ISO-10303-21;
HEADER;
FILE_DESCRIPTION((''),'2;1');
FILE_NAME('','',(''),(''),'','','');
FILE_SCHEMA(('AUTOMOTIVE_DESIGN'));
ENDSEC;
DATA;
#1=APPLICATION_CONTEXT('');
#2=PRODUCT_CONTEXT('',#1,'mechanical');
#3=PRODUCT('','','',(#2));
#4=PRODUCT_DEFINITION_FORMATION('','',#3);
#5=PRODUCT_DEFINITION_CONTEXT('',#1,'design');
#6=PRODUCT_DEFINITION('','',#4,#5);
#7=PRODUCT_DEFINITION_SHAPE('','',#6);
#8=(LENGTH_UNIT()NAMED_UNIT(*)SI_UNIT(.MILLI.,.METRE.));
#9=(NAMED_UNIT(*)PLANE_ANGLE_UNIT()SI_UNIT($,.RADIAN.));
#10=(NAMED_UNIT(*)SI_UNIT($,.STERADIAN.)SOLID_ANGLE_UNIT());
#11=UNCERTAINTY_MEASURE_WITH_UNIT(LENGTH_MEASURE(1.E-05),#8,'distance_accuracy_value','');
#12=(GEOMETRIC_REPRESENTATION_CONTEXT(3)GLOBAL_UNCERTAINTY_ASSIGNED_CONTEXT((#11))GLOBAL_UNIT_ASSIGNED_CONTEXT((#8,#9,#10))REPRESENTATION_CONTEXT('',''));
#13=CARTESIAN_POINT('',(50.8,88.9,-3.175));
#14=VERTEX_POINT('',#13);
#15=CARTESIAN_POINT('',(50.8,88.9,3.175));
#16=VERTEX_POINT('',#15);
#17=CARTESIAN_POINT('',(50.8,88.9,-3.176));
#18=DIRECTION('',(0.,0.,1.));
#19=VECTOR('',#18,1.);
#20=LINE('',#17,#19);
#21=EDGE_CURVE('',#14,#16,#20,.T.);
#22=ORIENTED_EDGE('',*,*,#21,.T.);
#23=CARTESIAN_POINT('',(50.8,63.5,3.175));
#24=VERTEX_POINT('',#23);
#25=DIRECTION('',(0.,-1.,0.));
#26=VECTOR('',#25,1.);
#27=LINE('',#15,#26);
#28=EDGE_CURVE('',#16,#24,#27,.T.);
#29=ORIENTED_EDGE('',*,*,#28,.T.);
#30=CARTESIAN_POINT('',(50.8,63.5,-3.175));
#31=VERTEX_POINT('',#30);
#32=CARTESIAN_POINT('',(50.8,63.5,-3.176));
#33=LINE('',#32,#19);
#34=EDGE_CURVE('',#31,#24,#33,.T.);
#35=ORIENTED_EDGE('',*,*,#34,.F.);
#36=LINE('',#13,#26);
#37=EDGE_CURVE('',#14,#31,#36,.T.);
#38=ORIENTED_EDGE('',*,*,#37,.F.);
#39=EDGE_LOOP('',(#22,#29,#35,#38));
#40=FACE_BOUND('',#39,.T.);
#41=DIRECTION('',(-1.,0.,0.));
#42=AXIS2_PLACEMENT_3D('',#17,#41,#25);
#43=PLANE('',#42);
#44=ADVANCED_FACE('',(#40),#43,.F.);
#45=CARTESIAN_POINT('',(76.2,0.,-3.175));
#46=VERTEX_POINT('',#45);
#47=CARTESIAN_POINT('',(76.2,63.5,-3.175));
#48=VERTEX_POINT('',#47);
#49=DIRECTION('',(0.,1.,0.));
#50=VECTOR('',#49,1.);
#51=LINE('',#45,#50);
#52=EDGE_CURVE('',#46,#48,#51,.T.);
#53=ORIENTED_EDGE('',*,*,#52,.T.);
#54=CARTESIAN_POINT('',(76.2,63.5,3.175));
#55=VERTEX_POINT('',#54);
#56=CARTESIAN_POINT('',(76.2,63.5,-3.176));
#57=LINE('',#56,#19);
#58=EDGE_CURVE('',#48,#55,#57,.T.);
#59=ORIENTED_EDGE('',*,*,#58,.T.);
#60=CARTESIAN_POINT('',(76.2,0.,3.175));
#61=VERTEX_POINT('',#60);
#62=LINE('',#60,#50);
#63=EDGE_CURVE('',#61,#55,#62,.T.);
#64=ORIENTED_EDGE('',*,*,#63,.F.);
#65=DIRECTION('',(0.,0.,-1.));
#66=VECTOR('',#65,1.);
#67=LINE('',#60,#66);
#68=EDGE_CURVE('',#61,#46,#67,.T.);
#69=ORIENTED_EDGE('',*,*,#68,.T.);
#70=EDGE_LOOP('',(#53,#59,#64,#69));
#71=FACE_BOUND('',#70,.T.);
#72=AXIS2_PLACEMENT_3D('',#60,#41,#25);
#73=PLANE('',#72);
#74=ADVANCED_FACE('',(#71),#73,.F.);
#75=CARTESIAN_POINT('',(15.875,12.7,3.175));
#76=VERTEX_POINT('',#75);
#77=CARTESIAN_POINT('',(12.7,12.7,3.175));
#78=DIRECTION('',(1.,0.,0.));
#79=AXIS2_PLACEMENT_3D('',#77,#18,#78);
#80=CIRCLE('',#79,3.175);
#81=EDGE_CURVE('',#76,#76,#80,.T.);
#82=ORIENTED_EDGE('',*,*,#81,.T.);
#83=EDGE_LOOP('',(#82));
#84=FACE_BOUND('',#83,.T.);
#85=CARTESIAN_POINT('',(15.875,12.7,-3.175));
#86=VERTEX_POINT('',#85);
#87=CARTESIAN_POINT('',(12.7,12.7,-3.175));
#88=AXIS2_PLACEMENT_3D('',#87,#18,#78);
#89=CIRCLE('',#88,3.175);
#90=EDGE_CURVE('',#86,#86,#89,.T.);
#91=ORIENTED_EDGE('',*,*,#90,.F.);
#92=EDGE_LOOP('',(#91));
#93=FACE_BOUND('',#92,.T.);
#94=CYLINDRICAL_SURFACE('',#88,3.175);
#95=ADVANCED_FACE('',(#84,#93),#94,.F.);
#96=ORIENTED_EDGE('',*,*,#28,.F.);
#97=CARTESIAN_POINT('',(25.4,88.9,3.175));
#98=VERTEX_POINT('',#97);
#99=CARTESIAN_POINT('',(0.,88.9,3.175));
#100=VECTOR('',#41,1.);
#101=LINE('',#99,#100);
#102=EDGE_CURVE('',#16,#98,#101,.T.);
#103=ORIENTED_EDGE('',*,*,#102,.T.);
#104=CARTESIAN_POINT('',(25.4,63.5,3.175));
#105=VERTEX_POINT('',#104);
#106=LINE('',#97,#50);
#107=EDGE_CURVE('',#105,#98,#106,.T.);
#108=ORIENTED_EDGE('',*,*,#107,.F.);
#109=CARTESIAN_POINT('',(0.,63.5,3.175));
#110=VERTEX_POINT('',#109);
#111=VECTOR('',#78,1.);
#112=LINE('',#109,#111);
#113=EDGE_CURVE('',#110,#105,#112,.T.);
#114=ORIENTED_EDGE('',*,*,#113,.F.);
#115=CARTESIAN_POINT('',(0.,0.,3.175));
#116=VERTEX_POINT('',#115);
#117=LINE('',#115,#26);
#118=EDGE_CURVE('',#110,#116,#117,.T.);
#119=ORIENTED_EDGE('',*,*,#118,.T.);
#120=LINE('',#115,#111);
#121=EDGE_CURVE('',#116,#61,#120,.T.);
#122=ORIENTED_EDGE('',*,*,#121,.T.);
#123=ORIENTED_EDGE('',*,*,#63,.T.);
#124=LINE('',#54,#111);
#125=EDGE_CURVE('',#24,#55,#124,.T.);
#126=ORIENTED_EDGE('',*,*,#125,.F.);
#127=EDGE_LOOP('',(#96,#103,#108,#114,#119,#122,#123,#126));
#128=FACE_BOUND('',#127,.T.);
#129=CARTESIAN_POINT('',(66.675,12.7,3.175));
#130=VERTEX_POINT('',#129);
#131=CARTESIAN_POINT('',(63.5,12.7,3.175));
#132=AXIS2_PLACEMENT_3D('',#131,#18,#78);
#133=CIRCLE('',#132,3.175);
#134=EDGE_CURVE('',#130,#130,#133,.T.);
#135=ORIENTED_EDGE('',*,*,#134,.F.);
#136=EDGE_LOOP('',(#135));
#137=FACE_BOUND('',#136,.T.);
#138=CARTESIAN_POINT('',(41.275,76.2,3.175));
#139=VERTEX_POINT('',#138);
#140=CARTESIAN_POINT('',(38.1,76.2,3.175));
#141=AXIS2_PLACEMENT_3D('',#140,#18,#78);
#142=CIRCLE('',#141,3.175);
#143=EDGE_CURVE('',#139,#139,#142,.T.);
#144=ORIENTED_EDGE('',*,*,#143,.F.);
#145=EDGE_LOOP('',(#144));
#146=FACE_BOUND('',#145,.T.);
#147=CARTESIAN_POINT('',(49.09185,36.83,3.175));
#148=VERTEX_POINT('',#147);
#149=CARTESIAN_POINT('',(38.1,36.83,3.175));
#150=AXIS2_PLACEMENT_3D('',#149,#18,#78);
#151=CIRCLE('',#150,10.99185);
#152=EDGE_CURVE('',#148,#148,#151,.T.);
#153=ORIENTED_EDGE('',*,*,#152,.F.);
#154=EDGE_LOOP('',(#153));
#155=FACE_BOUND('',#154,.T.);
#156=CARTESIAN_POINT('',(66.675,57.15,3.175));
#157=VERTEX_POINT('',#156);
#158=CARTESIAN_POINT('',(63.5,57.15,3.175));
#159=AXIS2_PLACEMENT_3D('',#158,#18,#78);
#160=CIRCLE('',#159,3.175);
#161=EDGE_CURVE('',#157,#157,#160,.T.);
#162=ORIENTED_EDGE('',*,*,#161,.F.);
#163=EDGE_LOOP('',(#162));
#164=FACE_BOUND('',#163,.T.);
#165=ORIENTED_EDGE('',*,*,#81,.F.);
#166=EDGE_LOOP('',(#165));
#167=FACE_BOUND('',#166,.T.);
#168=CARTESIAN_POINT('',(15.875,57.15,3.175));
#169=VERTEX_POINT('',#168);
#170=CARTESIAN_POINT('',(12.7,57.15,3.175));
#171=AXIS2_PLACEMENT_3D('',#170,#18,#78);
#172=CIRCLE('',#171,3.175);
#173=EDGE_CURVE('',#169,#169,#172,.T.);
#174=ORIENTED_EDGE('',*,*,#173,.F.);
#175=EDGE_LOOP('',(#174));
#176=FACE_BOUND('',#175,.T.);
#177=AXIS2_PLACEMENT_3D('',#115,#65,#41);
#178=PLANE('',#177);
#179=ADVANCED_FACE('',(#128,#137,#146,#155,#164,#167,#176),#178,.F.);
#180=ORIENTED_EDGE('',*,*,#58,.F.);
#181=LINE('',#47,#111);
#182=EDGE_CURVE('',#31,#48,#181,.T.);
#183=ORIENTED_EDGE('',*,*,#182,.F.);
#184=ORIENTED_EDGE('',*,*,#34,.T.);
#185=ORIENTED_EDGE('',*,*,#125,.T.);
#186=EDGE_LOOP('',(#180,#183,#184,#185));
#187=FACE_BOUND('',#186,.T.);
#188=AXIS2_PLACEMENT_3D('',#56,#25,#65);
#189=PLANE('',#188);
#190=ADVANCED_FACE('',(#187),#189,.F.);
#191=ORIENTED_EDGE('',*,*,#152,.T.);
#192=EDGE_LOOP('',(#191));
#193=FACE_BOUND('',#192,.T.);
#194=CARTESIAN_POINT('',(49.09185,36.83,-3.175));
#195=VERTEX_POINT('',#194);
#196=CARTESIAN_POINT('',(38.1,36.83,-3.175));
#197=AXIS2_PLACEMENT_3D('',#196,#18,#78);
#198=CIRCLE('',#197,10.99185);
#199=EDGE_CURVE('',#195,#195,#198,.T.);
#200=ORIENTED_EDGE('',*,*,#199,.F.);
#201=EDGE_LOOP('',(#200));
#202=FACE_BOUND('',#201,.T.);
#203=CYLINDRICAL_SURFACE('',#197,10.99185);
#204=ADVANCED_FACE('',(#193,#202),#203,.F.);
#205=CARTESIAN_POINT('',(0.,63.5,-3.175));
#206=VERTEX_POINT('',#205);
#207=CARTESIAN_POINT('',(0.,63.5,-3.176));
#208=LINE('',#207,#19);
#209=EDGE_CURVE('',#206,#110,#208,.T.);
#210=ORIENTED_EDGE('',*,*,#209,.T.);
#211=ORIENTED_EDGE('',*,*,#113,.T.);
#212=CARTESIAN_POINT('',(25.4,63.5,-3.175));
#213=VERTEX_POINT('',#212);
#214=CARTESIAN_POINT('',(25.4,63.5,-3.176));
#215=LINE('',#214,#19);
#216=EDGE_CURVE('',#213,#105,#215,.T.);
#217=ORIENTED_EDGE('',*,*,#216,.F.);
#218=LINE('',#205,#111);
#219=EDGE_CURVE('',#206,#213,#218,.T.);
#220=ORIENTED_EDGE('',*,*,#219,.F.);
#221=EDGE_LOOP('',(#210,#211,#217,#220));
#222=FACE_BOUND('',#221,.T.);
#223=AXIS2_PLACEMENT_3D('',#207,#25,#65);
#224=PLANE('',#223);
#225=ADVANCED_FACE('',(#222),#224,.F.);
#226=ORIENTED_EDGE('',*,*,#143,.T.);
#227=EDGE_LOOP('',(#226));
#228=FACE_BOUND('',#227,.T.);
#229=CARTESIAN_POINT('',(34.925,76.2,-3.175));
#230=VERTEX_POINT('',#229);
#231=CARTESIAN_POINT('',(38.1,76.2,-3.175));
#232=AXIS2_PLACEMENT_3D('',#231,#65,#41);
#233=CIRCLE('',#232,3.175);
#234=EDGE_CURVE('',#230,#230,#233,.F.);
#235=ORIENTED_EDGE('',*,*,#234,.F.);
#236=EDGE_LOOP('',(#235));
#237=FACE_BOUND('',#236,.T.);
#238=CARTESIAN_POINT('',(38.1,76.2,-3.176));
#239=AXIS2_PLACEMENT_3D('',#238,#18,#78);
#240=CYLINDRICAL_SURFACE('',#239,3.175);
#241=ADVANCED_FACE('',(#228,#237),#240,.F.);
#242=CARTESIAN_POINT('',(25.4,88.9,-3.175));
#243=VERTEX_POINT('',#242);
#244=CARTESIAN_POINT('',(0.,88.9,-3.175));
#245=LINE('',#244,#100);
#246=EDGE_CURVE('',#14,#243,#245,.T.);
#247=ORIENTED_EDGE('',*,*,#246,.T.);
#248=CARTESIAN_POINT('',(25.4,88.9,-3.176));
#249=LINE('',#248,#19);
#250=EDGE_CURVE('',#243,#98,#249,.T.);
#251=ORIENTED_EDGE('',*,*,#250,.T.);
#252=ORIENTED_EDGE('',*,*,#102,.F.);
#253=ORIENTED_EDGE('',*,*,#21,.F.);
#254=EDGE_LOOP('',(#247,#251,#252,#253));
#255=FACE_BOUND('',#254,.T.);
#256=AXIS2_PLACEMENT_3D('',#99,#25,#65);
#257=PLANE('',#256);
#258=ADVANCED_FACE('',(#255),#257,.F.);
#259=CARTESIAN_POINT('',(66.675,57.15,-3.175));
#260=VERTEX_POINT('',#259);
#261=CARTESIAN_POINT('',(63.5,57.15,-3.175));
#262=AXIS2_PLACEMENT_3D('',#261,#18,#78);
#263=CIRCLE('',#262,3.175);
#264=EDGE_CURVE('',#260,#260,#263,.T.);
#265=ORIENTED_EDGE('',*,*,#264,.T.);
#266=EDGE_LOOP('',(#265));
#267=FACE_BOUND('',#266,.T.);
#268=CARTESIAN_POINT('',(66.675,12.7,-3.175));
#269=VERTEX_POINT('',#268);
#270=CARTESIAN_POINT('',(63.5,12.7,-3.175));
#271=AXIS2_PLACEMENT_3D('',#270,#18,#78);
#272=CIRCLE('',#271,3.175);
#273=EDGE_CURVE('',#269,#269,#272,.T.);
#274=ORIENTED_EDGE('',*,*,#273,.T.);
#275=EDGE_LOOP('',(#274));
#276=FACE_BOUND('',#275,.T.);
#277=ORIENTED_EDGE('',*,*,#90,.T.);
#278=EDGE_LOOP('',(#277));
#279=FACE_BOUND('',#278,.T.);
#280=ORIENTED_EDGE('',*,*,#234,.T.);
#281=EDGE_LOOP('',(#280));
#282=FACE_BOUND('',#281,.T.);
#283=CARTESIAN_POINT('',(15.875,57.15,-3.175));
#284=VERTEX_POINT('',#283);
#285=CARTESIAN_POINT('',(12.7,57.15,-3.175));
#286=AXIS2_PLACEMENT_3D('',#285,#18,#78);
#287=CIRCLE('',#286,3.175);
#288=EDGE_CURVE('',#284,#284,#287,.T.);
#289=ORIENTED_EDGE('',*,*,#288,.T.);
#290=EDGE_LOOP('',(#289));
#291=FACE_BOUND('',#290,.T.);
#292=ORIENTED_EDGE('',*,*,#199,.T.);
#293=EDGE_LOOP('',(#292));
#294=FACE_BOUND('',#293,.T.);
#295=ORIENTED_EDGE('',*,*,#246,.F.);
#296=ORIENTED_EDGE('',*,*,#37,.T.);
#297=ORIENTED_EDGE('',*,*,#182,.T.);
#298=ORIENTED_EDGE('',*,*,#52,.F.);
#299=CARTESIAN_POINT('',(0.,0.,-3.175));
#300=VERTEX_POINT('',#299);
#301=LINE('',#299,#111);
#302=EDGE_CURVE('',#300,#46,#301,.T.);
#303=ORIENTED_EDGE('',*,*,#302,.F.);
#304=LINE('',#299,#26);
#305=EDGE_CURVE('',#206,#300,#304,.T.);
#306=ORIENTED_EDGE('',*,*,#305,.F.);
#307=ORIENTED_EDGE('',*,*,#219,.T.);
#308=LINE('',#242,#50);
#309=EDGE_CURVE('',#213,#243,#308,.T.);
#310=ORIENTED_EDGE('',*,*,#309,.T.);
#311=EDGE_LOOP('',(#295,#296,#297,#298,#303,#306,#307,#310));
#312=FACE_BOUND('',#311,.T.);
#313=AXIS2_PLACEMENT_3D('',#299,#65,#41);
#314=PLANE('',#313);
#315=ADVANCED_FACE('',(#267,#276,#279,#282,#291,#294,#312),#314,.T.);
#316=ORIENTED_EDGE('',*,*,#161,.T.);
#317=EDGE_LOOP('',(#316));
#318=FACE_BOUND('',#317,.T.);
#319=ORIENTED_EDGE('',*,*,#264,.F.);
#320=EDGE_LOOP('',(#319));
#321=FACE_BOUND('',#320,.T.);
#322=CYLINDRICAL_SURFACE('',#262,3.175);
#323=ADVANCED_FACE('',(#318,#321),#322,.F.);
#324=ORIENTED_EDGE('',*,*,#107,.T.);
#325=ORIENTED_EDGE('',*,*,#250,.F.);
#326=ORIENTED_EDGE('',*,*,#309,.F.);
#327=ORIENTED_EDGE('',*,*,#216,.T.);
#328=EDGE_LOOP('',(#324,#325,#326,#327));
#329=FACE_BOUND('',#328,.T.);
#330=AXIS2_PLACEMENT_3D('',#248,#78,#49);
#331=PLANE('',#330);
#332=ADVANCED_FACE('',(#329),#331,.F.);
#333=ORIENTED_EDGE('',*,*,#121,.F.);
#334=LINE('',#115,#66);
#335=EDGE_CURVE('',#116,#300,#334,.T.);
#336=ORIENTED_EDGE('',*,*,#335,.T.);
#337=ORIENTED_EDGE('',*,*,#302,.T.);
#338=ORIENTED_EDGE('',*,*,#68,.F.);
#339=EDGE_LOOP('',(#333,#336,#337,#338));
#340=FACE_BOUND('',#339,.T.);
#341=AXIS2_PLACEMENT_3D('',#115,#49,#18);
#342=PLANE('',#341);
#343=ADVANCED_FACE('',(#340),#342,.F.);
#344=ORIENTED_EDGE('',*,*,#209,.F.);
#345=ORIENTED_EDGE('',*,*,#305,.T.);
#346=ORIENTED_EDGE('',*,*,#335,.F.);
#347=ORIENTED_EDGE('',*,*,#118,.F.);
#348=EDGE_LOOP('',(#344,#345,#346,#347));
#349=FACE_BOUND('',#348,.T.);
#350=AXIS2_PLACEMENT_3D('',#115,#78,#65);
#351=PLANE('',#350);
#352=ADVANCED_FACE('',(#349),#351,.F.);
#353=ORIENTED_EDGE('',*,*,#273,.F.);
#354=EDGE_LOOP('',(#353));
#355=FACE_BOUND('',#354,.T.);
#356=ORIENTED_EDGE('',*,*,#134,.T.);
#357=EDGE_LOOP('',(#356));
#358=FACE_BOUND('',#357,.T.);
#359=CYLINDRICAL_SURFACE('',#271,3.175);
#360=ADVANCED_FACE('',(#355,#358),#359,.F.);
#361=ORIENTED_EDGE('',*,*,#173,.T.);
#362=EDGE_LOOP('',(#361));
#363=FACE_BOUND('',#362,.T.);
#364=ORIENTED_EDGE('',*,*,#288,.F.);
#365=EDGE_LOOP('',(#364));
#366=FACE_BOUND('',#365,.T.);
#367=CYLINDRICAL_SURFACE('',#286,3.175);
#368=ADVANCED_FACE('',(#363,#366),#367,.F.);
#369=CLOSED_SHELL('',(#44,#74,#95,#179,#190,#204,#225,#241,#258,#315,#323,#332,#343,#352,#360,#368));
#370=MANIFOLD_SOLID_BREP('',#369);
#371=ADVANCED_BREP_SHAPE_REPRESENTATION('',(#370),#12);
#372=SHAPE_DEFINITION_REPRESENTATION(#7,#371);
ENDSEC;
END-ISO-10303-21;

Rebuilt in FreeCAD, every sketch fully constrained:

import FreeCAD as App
import Part
import Sketcher
Q = App.Units.Quantity

doc = App.newDocument("Part")
body = doc.addObject("PartDesign::Body", "Body")

# Sketch on XY plane
sketch1 = body.newObject("Sketcher::SketchObject", "Sketch")
sketch1.AttachmentSupport = (doc.getObject("XY_Plane"), [""])
sketch1.MapMode = "FlatFace"
sketch1.addGeometry(Part.LineSegment(App.Vector(0, 89, 0), App.Vector(0, 0, 0)), False)
sketch1.addGeometry(Part.LineSegment(App.Vector(0, 0, 0), App.Vector(76, 0, 0)), False)
sketch1.addGeometry(Part.LineSegment(App.Vector(76, 0, 0), App.Vector(76, 89, 0)), False)
sketch1.addGeometry(Part.LineSegment(App.Vector(76, 89, 0), App.Vector(0, 89, 0)), False)
sketch1.addConstraint(Sketcher.Constraint("Coincident", 0, 2, 1, 1))
sketch1.addConstraint(Sketcher.Constraint("Coincident", 1, 2, 2, 1))
sketch1.addConstraint(Sketcher.Constraint("Coincident", 2, 2, 3, 1))
sketch1.addConstraint(Sketcher.Constraint("Coincident", 3, 2, 0, 1))
sketch1.addConstraint(Sketcher.Constraint("Vertical", 0))
sketch1.addConstraint(Sketcher.Constraint("Horizontal", 1))
sketch1.addConstraint(Sketcher.Constraint("Vertical", 2))
sketch1.addConstraint(Sketcher.Constraint("Horizontal", 3))
sketch1.addConstraint(Sketcher.Constraint("Coincident", 0, 2, -1, 1))
sketch1.addConstraint(Sketcher.Constraint("DistanceX", 1, 1, 1, 2, Q("3 in")))
sketch1.addConstraint(Sketcher.Constraint("DistanceY", 0, 2, 0, 1, Q("3.5 in")))
pad1 = body.newObject("PartDesign::Pad", "Pad")
pad1.Profile = sketch1
pad1.Length = Q("0.25 in")
pad1.Midplane = True

# Sketch on XY plane
sketch2 = body.newObject("Sketcher::SketchObject", "Sketch001")
sketch2.AttachmentSupport = (doc.getObject("XY_Plane"), [""])
sketch2.MapMode = "FlatFace"
sketch2.AttachmentOffset = App.Placement(App.Vector(0, 0, 0.125 * 25.4), App.Rotation())
sketch2.addGeometry(Part.Circle(App.Vector(12.7, 76.2, 0), App.Vector(0, 0, 1), 3.2), False)
sketch2.addGeometry(Part.Circle(App.Vector(63.5, 76.2, 0), App.Vector(0, 0, 1), 3.2), False)
sketch2.addGeometry(Part.Circle(App.Vector(63.5, 12.7, 0), App.Vector(0, 0, 1), 3.2), False)
sketch2.addGeometry(Part.Circle(App.Vector(12.7, 12.7, 0), App.Vector(0, 0, 1), 3.2), False)
sketch2.addGeometry(Part.Circle(App.Vector(38.1, 36.8, 0), App.Vector(0, 0, 1), 11), False)
sketch2.addGeometry(Part.Circle(App.Vector(12.7, 57.1, 0), App.Vector(0, 0, 1), 3.2), False)
sketch2.addGeometry(Part.Circle(App.Vector(63.5, 57.1, 0), App.Vector(0, 0, 1), 3.2), False)
sketch2.addConstraint(Sketcher.Constraint("Equal", 0, 1))
sketch2.addConstraint(Sketcher.Constraint("Equal", 1, 2))
sketch2.addConstraint(Sketcher.Constraint("Equal", 2, 3))
sketch2.addConstraint(Sketcher.Constraint("Equal", 3, 5))
sketch2.addConstraint(Sketcher.Constraint("Equal", 5, 6))
sketch2.addConstraint(Sketcher.Constraint("Horizontal", 0, 3, 1, 3))
sketch2.addConstraint(Sketcher.Constraint("Horizontal", 2, 3, 3, 3))
sketch2.addConstraint(Sketcher.Constraint("Horizontal", 5, 3, 6, 3))
sketch2.addConstraint(Sketcher.Constraint("Vertical", 1, 3, 2, 3))
sketch2.addConstraint(Sketcher.Constraint("Vertical", 0, 3, 3, 3))
sketch2.addConstraint(Sketcher.Constraint("Vertical", 3, 3, 5, 3))
sketch2.addConstraint(Sketcher.Constraint("Vertical", 2, 3, 6, 3))
sketch2.addConstraint(Sketcher.Constraint("Diameter", 0, Q("0.25 in")))
sketch2.addConstraint(Sketcher.Constraint("DistanceY", -1, 1, 0, 3, Q("3 in")))
sketch2.addConstraint(Sketcher.Constraint("DistanceX", 0, 3, 1, 3, Q("2 in")))
sketch2.addConstraint(Sketcher.Constraint("DistanceX", 4, 3, 2, 3, Q("1 in")))
sketch2.addConstraint(Sketcher.Constraint("Diameter", 4, Q("0.8655 in")))
sketch2.addConstraint(Sketcher.Constraint("DistanceX", -1, 1, 0, 3, Q("0.5 in")))
sketch2.addConstraint(Sketcher.Constraint("DistanceY", -1, 1, 2, 3, Q("0.5 in")))
sketch2.addConstraint(Sketcher.Constraint("DistanceY", 4, 3, 5, 3, Q("0.8 in")))
sketch2.addConstraint(Sketcher.Constraint("DistanceY", -1, 1, 4, 3, Q("1.45 in")))
pocket1 = body.newObject("PartDesign::Pocket", "Pocket")
pocket1.Profile = sketch2
pocket1.Type = "ThroughAll"

# Sketch on XY plane
sketch3 = body.newObject("Sketcher::SketchObject", "Sketch002")
sketch3.AttachmentSupport = (doc.getObject("XY_Plane"), [""])
sketch3.MapMode = "FlatFace"
sketch3.AttachmentOffset = App.Placement(App.Vector(0, 0, 0.125 * 25.4), App.Rotation())
sketch3.addGeometry(Part.Circle(App.Vector(38.1, 76.2, 0), App.Vector(0, 0, 1), 3.2), False)
sketch3.addConstraint(Sketcher.Constraint("Diameter", 0, Q("0.25 in")))
sketch3.addConstraint(Sketcher.Constraint("DistanceY", -1, 1, 0, 3, Q("3 in")))
sketch3.addConstraint(Sketcher.Constraint("DistanceX", -1, 1, 0, 3, Q("1.5 in")))
pocket2 = body.newObject("PartDesign::Pocket", "Pocket001")
pocket2.Profile = sketch3
pocket2.Type = "UpToFirst"

# Sketch on XY plane
sketch4 = body.newObject("Sketcher::SketchObject", "Sketch003")
sketch4.AttachmentSupport = (doc.getObject("XY_Plane"), [""])
sketch4.MapMode = "FlatFace"
sketch4.AttachmentOffset = App.Placement(App.Vector(0, 0, 0.125 * 25.4), App.Rotation())
sketch4.addGeometry(Part.LineSegment(App.Vector(51, 89, 0), App.Vector(51, 64, 0)), False)
sketch4.addGeometry(Part.LineSegment(App.Vector(51, 64, 0), App.Vector(76, 64, 0)), False)
sketch4.addGeometry(Part.LineSegment(App.Vector(76, 64, 0), App.Vector(76, 89, 0)), False)
sketch4.addGeometry(Part.LineSegment(App.Vector(76, 89, 0), App.Vector(51, 89, 0)), False)
sketch4.addConstraint(Sketcher.Constraint("Coincident", 0, 2, 1, 1))
sketch4.addConstraint(Sketcher.Constraint("Coincident", 1, 2, 2, 1))
sketch4.addConstraint(Sketcher.Constraint("Coincident", 2, 2, 3, 1))
sketch4.addConstraint(Sketcher.Constraint("Coincident", 3, 2, 0, 1))
sketch4.addConstraint(Sketcher.Constraint("Vertical", 0))
sketch4.addConstraint(Sketcher.Constraint("Horizontal", 1))
sketch4.addConstraint(Sketcher.Constraint("Vertical", 2))
sketch4.addConstraint(Sketcher.Constraint("Horizontal", 3))
sketch4.addConstraint(Sketcher.Constraint("Equal", 3, 0))
sketch4.addConstraint(Sketcher.Constraint("DistanceX", 1, 1, 1, 2, Q("1 in")))
sketch4.addConstraint(Sketcher.Constraint("DistanceX", -1, 1, 0, 2, Q("2 in")))
sketch4.addConstraint(Sketcher.Constraint("DistanceY", -1, 1, 0, 2, Q("2.5 in")))
pocket3 = body.newObject("PartDesign::Pocket", "Pocket002")
pocket3.Profile = sketch4
pocket3.Length = Q("0.25 in")

# Sketch on XY plane
sketch5 = body.newObject("Sketcher::SketchObject", "Sketch004")
sketch5.AttachmentSupport = (doc.getObject("XY_Plane"), [""])
sketch5.MapMode = "FlatFace"
sketch5.AttachmentOffset = App.Placement(App.Vector(0, 0, 0.125 * 25.4), App.Rotation())
sketch5.addGeometry(Part.LineSegment(App.Vector(0, 89, 0), App.Vector(0, 64, 0)), False)
sketch5.addGeometry(Part.LineSegment(App.Vector(0, 64, 0), App.Vector(25, 64, 0)), False)
sketch5.addGeometry(Part.LineSegment(App.Vector(25, 64, 0), App.Vector(25, 89, 0)), False)
sketch5.addGeometry(Part.LineSegment(App.Vector(25, 89, 0), App.Vector(0, 89, 0)), False)
sketch5.addConstraint(Sketcher.Constraint("Coincident", 0, 2, 1, 1))
sketch5.addConstraint(Sketcher.Constraint("Coincident", 1, 2, 2, 1))
sketch5.addConstraint(Sketcher.Constraint("Coincident", 2, 2, 3, 1))
sketch5.addConstraint(Sketcher.Constraint("Coincident", 3, 2, 0, 1))
sketch5.addConstraint(Sketcher.Constraint("Vertical", 0))
sketch5.addConstraint(Sketcher.Constraint("Horizontal", 1))
sketch5.addConstraint(Sketcher.Constraint("Vertical", 2))
sketch5.addConstraint(Sketcher.Constraint("Horizontal", 3))
sketch5.addConstraint(Sketcher.Constraint("PointOnObject", 0, 2, -2))
sketch5.addConstraint(Sketcher.Constraint("Equal", 3, 0))
sketch5.addConstraint(Sketcher.Constraint("DistanceX", 1, 1, 1, 2, Q("1 in")))
sketch5.addConstraint(Sketcher.Constraint("DistanceY", -1, 1, 0, 2, Q("2.5 in")))
pocket4 = body.newObject("PartDesign::Pocket", "Pocket003")
pocket4.Profile = sketch5
pocket4.Length = Q("0.25 in")

doc.recompute()
